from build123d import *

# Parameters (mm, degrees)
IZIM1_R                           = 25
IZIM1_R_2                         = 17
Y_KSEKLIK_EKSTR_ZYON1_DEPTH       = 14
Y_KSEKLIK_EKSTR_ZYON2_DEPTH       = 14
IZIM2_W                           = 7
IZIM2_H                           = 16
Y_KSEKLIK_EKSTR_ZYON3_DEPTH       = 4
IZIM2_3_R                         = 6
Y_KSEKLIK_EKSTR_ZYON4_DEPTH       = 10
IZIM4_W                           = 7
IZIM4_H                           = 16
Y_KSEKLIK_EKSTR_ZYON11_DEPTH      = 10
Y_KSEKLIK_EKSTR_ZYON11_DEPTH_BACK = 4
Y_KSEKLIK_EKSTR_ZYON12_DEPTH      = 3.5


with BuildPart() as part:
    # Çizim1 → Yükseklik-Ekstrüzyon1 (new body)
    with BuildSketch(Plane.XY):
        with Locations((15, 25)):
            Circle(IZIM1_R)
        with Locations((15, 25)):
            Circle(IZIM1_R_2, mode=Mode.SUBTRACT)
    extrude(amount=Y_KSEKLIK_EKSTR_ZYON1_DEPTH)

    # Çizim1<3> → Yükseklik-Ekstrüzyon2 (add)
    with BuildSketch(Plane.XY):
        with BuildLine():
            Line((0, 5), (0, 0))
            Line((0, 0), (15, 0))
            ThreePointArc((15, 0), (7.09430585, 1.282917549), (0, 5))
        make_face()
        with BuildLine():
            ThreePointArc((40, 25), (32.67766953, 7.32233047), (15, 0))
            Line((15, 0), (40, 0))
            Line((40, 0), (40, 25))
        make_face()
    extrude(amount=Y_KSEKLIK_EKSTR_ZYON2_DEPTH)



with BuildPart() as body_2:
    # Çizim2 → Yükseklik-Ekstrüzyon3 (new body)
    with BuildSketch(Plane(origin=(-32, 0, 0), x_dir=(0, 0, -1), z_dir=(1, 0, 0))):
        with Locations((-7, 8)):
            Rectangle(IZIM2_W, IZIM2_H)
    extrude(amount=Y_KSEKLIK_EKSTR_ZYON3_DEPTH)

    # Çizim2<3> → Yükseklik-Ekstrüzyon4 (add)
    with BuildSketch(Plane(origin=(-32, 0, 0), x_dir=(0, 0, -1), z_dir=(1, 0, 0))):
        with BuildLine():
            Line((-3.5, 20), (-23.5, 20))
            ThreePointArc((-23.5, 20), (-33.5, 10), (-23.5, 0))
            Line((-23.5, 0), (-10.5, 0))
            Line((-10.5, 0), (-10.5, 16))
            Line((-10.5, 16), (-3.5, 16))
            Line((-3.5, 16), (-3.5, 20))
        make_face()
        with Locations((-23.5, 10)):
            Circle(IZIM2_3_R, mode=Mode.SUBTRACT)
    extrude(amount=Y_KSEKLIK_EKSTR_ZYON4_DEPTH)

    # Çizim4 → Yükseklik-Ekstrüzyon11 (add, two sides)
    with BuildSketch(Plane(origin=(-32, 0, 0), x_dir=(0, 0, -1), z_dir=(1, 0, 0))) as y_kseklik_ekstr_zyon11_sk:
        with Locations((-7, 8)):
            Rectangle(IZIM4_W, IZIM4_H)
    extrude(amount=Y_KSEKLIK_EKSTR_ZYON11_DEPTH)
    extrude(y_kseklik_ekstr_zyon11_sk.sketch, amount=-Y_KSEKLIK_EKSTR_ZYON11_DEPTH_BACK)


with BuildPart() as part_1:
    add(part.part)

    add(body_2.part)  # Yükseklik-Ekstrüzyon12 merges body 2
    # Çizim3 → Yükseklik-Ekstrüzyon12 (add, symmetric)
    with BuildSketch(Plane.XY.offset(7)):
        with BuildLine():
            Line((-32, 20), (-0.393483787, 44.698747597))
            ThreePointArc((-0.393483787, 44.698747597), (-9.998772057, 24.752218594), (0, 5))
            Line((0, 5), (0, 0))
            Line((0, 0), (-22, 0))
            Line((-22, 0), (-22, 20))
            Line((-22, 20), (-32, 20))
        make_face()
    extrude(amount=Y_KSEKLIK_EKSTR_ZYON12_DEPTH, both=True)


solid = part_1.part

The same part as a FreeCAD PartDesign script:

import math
import FreeCAD as App
import Part
import Sketcher

V = App.Vector

doc = App.newDocument("Part")
body = doc.addObject("PartDesign::Body", "Body")

# Sketch on XY plane
sketch1 = body.newObject("Sketcher::SketchObject", "Sketch")
sketch1.AttachmentSupport = (doc.getObject("XY_Plane"), [""])
sketch1.MapMode = "FlatFace"
sketch1.addGeometry([
    Part.Circle(V(15, 25, 0), V(0, 0, 1), 25),
    Part.Circle(V(15, 25, 0), V(0, 0, 1), 17),
], False)
sketch1.addConstraint([
    Sketcher.Constraint("Coincident", 1, 3, 0, 3),
    Sketcher.Constraint("Diameter", 0, 50.0),
    Sketcher.Constraint("Diameter", 1, 34.0),
    Sketcher.Constraint("DistanceX", -1, 1, 0, 3, 15.0),
    Sketcher.Constraint("DistanceY", -1, 1, 0, 3, 25.0),
])
pad1 = body.newObject("PartDesign::Pad", "Pad")
pad1.Profile = sketch1
pad1.Length = 14

# Sketch on XY plane
sketch2 = body.newObject("Sketcher::SketchObject", "Sketch001")
sketch2.AttachmentSupport = (doc.getObject("XY_Plane"), [""])
sketch2.MapMode = "FlatFace"
sketch2.addGeometry([
    Part.LineSegment(V(0, 5, 0), V(0, 0, 0)),  # 0
    Part.LineSegment(V(0, 0, 0), V(15, 0, 0)),  # 1
    Part.ArcOfCircle(Part.Circle(V(15, 25, 0), V(0, 0, 1), 25), math.radians(-127), math.radians(-90)),  # 2
    Part.ArcOfCircle(Part.Circle(V(15, 25, 0), V(0, 0, 1), 25), math.radians(-90), math.radians(0)),  # 3
    Part.LineSegment(V(15, 0, 0), V(40, 0, 0)),  # 4
    Part.LineSegment(V(40, 0, 0), V(40, 25, 0)),  # 5
], False)
sketch2.addConstraint([
    Sketcher.Constraint("Coincident", 0, 2, 1, 1),
    Sketcher.Constraint("Tangent", 1, 2, 2, 2),
    Sketcher.Constraint("Coincident", 2, 1, 0, 1),
    Sketcher.Constraint("Tangent", 3, 1, 4, 1),
    Sketcher.Constraint("Coincident", 4, 2, 5, 1),
    Sketcher.Constraint("Tangent", 5, 2, 3, 2),
    Sketcher.Constraint("Vertical", 0),
    Sketcher.Constraint("Horizontal", 1),
    Sketcher.Constraint("Horizontal", 4),
    Sketcher.Constraint("Vertical", 5),
    Sketcher.Constraint("Coincident", 0, 2, -1, 1),
    Sketcher.Constraint("Coincident", 3, 3, 2, 3),
    Sketcher.Constraint("Equal", 2, 3),
    Sketcher.Constraint("Radius", 2, 25.0),
    Sketcher.Constraint("DistanceX", 1, 1, 1, 2, 15.0),
])
pad2 = body.newObject("PartDesign::Pad", "Pad001")
pad2.Profile = sketch2
pad2.Length = 14
body2 = doc.addObject("PartDesign::Body", "Body001")

# Sketch on YZ plane
sketch3 = body2.newObject("Sketcher::SketchObject", "Sketch002")
sketch3.AttachmentSupport = (doc.getObject("YZ_Plane001"), [""])
sketch3.MapMode = "FlatFace"
sketch3.AttachmentOffset = App.Placement(V(0, 0, -32), App.Rotation())
sketch3.addGeometry([
    Part.LineSegment(V(16, 10, 0), V(0, 10, 0)),
    Part.LineSegment(V(0, 10, 0), V(0, 4, 0)),
    Part.LineSegment(V(0, 4, 0), V(16, 4, 0)),
    Part.LineSegment(V(16, 4, 0), V(16, 10, 0)),
], False)
sketch3.addConstraint([
    Sketcher.Constraint("Coincident", 0, 2, 1, 1),
    Sketcher.Constraint("Coincident", 1, 2, 2, 1),
    Sketcher.Constraint("Coincident", 2, 2, 3, 1),
    Sketcher.Constraint("Coincident", 3, 2, 0, 1),
    Sketcher.Constraint("Horizontal", 0),
    Sketcher.Constraint("Vertical", 1),
    Sketcher.Constraint("Horizontal", 2),
    Sketcher.Constraint("Vertical", 3),
    Sketcher.Constraint("PointOnObject", 0, 2, -2),
    Sketcher.Constraint("DistanceX", 0, 2, 0, 1, 16.0),
    Sketcher.Constraint("DistanceY", 1, 2, 1, 1, 7.0),
    Sketcher.Constraint("DistanceY", -1, 1, 0, 2, 10.5),
])
pad3 = body2.newObject("PartDesign::Pad", "Pad002")
pad3.Profile = sketch3
pad3.Length = 4

# Sketch on YZ plane
sketch4 = body2.newObject("Sketcher::SketchObject", "Sketch003")
sketch4.AttachmentSupport = (doc.getObject("YZ_Plane001"), [""])
sketch4.MapMode = "FlatFace"
sketch4.AttachmentOffset = App.Placement(V(0, 0, -32), App.Rotation())
sketch4.addGeometry([
    Part.LineSegment(V(20, 3.5, 0), V(20, 23.5, 0)),  # 0
    Part.ArcOfCircle(Part.Circle(V(10, 23.5, 0), V(0, 0, 1), 10), math.radians(0), math.radians(180)),  # 1
    Part.LineSegment(V(0, 23.5, 0), V(0, 10.5, 0)),  # 2
    Part.LineSegment(V(0, 10.5, 0), V(16, 10.5, 0)),  # 3
    Part.LineSegment(V(16, 10.5, 0), V(16, 3.5, 0)),  # 4
    Part.LineSegment(V(16, 3.5, 0), V(20, 3.5, 0)),  # 5
    Part.Circle(V(10, 23.5, 0), V(0, 0, 1), 6),  # 6
], False)
sketch4.addConstraint([
    Sketcher.Constraint("Tangent", 0, 2, 1, 1),
    Sketcher.Constraint("Tangent", 1, 2, 2, 1),
    Sketcher.Constraint("Coincident", 2, 2, 3, 1),
    Sketcher.Constraint("Coincident", 3, 2, 4, 1),
    Sketcher.Constraint("Coincident", 4, 2, 5, 1),
    Sketcher.Constraint("Coincident", 5, 2, 0, 1),
    Sketcher.Constraint("Vertical", 0),
    Sketcher.Constraint("Vertical", 2),
    Sketcher.Constraint("Horizontal", 3),
    Sketcher.Constraint("Vertical", 4),
    Sketcher.Constraint("Horizontal", 5),
    Sketcher.Constraint("Coincident", 6, 3, 1, 3),
    Sketcher.Constraint("PointOnObject", 1, 2, -2),
    Sketcher.Constraint("Diameter", 6, 12.0),
    Sketcher.Constraint("Radius", 1, 10.0),
    Sketcher.Constraint("DistanceX", 3, 1, 3, 2, 16.0),
    Sketcher.Constraint("DistanceY", 0, 1, 0, 2, 20.0),
    Sketcher.Constraint("DistanceY", 2, 2, 2, 1, 13.0),
    Sketcher.Constraint("DistanceY", -1, 1, 1, 3, 23.5),
])
pad4 = body2.newObject("PartDesign::Pad", "Pad003")
pad4.Profile = sketch4
pad4.Length = 10

# Sketch on YZ plane
sketch5 = body2.newObject("Sketcher::SketchObject", "Sketch004")
sketch5.AttachmentSupport = (doc.getObject("YZ_Plane001"), [""])
sketch5.MapMode = "FlatFace"
sketch5.AttachmentOffset = App.Placement(V(0, 0, -32), App.Rotation())
sketch5.addGeometry([
    Part.LineSegment(V(16, 10, 0), V(0, 10, 0)),
    Part.LineSegment(V(0, 10, 0), V(0, 4, 0)),
    Part.LineSegment(V(0, 4, 0), V(16, 4, 0)),
    Part.LineSegment(V(16, 4, 0), V(16, 10, 0)),
], False)
sketch5.addConstraint([
    Sketcher.Constraint("Coincident", 0, 2, 1, 1),
    Sketcher.Constraint("Coincident", 1, 2, 2, 1),
    Sketcher.Constraint("Coincident", 2, 2, 3, 1),
    Sketcher.Constraint("Coincident", 3, 2, 0, 1),
    Sketcher.Constraint("Horizontal", 0),
    Sketcher.Constraint("Vertical", 1),
    Sketcher.Constraint("Horizontal", 2),
    Sketcher.Constraint("Vertical", 3),
    Sketcher.Constraint("PointOnObject", 0, 2, -2),
    Sketcher.Constraint("DistanceX", 0, 2, 0, 1, 16.0),
    Sketcher.Constraint("DistanceY", 1, 2, 1, 1, 7.0),
    Sketcher.Constraint("DistanceY", -1, 1, 0, 2, 10.5),
])
pad5 = body2.newObject("PartDesign::Pad", "Pad004")
pad5.Profile = sketch5
pad5.Type = "TwoLengths"
pad5.Length = 10
pad5.Length2 = 4
body.AllowCompound = True
doc.recompute()

boolean = body.newObject("PartDesign::Boolean", "Boolean")
boolean.Type = "Fuse"
boolean.addObjects([body2])

# Sketch on XY plane
sketch6 = body.newObject("Sketcher::SketchObject", "Sketch005")
sketch6.AttachmentSupport = (doc.getObject("XY_Plane"), [""])
sketch6.MapMode = "FlatFace"
sketch6.AttachmentOffset = App.Placement(V(0, 0, 7), App.Rotation())
sketch6.addGeometry([
    Part.LineSegment(V(0, 45, 0), V(-32, 20, 0)),  # 0
    Part.LineSegment(V(-32, 20, 0), V(-22, 20, 0)),  # 1
    Part.LineSegment(V(-22, 20, 0), V(-22, 0, 0)),  # 2
    Part.LineSegment(V(-22, 0, 0), V(0, 0, 0)),  # 3
    Part.LineSegment(V(0, 0, 0), V(0, 5, 0)),  # 4
    Part.ArcOfCircle(Part.Circle(V(15, 25, 0), V(0, 0, 1), 25), math.radians(128), math.radians(233)),  # 5
], False)
sketch6.addConstraint([
    Sketcher.Constraint("Coincident", 0, 2, 1, 1),
    Sketcher.Constraint("Coincident", 1, 2, 2, 1),
    Sketcher.Constraint("Coincident", 2, 2, 3, 1),
    Sketcher.Constraint("Coincident", 3, 2, 4, 1),
    Sketcher.Constraint("Coincident", 4, 2, 5, 2),
    Sketcher.Constraint("Tangent", 5, 1, 0, 1),
    Sketcher.Constraint("Horizontal", 1),
    Sketcher.Constraint("Vertical", 2),
    Sketcher.Constraint("Horizontal", 3),
    Sketcher.Constraint("Vertical", 4),
    Sketcher.Constraint("Coincident", 3, 2, -1, 1),
    Sketcher.Constraint("Radius", 5, 25.0),
    Sketcher.Constraint("DistanceX", 1, 1, 1, 2, 10.0),
    Sketcher.Constraint("DistanceX", 3, 1, 3, 2, 22.0),
    Sketcher.Constraint("DistanceY", 2, 2, 2, 1, 20.0),
    Sketcher.Constraint("DistanceY", 4, 1, 4, 2, 5.0),
    Sketcher.Constraint("DistanceX", -1, 1, 5, 3, 15.0),
])
pad6 = body.newObject("PartDesign::Pad", "Pad005")
pad6.Profile = sketch6
pad6.Length = 7
pad6.Midplane = True

doc.recompute()
